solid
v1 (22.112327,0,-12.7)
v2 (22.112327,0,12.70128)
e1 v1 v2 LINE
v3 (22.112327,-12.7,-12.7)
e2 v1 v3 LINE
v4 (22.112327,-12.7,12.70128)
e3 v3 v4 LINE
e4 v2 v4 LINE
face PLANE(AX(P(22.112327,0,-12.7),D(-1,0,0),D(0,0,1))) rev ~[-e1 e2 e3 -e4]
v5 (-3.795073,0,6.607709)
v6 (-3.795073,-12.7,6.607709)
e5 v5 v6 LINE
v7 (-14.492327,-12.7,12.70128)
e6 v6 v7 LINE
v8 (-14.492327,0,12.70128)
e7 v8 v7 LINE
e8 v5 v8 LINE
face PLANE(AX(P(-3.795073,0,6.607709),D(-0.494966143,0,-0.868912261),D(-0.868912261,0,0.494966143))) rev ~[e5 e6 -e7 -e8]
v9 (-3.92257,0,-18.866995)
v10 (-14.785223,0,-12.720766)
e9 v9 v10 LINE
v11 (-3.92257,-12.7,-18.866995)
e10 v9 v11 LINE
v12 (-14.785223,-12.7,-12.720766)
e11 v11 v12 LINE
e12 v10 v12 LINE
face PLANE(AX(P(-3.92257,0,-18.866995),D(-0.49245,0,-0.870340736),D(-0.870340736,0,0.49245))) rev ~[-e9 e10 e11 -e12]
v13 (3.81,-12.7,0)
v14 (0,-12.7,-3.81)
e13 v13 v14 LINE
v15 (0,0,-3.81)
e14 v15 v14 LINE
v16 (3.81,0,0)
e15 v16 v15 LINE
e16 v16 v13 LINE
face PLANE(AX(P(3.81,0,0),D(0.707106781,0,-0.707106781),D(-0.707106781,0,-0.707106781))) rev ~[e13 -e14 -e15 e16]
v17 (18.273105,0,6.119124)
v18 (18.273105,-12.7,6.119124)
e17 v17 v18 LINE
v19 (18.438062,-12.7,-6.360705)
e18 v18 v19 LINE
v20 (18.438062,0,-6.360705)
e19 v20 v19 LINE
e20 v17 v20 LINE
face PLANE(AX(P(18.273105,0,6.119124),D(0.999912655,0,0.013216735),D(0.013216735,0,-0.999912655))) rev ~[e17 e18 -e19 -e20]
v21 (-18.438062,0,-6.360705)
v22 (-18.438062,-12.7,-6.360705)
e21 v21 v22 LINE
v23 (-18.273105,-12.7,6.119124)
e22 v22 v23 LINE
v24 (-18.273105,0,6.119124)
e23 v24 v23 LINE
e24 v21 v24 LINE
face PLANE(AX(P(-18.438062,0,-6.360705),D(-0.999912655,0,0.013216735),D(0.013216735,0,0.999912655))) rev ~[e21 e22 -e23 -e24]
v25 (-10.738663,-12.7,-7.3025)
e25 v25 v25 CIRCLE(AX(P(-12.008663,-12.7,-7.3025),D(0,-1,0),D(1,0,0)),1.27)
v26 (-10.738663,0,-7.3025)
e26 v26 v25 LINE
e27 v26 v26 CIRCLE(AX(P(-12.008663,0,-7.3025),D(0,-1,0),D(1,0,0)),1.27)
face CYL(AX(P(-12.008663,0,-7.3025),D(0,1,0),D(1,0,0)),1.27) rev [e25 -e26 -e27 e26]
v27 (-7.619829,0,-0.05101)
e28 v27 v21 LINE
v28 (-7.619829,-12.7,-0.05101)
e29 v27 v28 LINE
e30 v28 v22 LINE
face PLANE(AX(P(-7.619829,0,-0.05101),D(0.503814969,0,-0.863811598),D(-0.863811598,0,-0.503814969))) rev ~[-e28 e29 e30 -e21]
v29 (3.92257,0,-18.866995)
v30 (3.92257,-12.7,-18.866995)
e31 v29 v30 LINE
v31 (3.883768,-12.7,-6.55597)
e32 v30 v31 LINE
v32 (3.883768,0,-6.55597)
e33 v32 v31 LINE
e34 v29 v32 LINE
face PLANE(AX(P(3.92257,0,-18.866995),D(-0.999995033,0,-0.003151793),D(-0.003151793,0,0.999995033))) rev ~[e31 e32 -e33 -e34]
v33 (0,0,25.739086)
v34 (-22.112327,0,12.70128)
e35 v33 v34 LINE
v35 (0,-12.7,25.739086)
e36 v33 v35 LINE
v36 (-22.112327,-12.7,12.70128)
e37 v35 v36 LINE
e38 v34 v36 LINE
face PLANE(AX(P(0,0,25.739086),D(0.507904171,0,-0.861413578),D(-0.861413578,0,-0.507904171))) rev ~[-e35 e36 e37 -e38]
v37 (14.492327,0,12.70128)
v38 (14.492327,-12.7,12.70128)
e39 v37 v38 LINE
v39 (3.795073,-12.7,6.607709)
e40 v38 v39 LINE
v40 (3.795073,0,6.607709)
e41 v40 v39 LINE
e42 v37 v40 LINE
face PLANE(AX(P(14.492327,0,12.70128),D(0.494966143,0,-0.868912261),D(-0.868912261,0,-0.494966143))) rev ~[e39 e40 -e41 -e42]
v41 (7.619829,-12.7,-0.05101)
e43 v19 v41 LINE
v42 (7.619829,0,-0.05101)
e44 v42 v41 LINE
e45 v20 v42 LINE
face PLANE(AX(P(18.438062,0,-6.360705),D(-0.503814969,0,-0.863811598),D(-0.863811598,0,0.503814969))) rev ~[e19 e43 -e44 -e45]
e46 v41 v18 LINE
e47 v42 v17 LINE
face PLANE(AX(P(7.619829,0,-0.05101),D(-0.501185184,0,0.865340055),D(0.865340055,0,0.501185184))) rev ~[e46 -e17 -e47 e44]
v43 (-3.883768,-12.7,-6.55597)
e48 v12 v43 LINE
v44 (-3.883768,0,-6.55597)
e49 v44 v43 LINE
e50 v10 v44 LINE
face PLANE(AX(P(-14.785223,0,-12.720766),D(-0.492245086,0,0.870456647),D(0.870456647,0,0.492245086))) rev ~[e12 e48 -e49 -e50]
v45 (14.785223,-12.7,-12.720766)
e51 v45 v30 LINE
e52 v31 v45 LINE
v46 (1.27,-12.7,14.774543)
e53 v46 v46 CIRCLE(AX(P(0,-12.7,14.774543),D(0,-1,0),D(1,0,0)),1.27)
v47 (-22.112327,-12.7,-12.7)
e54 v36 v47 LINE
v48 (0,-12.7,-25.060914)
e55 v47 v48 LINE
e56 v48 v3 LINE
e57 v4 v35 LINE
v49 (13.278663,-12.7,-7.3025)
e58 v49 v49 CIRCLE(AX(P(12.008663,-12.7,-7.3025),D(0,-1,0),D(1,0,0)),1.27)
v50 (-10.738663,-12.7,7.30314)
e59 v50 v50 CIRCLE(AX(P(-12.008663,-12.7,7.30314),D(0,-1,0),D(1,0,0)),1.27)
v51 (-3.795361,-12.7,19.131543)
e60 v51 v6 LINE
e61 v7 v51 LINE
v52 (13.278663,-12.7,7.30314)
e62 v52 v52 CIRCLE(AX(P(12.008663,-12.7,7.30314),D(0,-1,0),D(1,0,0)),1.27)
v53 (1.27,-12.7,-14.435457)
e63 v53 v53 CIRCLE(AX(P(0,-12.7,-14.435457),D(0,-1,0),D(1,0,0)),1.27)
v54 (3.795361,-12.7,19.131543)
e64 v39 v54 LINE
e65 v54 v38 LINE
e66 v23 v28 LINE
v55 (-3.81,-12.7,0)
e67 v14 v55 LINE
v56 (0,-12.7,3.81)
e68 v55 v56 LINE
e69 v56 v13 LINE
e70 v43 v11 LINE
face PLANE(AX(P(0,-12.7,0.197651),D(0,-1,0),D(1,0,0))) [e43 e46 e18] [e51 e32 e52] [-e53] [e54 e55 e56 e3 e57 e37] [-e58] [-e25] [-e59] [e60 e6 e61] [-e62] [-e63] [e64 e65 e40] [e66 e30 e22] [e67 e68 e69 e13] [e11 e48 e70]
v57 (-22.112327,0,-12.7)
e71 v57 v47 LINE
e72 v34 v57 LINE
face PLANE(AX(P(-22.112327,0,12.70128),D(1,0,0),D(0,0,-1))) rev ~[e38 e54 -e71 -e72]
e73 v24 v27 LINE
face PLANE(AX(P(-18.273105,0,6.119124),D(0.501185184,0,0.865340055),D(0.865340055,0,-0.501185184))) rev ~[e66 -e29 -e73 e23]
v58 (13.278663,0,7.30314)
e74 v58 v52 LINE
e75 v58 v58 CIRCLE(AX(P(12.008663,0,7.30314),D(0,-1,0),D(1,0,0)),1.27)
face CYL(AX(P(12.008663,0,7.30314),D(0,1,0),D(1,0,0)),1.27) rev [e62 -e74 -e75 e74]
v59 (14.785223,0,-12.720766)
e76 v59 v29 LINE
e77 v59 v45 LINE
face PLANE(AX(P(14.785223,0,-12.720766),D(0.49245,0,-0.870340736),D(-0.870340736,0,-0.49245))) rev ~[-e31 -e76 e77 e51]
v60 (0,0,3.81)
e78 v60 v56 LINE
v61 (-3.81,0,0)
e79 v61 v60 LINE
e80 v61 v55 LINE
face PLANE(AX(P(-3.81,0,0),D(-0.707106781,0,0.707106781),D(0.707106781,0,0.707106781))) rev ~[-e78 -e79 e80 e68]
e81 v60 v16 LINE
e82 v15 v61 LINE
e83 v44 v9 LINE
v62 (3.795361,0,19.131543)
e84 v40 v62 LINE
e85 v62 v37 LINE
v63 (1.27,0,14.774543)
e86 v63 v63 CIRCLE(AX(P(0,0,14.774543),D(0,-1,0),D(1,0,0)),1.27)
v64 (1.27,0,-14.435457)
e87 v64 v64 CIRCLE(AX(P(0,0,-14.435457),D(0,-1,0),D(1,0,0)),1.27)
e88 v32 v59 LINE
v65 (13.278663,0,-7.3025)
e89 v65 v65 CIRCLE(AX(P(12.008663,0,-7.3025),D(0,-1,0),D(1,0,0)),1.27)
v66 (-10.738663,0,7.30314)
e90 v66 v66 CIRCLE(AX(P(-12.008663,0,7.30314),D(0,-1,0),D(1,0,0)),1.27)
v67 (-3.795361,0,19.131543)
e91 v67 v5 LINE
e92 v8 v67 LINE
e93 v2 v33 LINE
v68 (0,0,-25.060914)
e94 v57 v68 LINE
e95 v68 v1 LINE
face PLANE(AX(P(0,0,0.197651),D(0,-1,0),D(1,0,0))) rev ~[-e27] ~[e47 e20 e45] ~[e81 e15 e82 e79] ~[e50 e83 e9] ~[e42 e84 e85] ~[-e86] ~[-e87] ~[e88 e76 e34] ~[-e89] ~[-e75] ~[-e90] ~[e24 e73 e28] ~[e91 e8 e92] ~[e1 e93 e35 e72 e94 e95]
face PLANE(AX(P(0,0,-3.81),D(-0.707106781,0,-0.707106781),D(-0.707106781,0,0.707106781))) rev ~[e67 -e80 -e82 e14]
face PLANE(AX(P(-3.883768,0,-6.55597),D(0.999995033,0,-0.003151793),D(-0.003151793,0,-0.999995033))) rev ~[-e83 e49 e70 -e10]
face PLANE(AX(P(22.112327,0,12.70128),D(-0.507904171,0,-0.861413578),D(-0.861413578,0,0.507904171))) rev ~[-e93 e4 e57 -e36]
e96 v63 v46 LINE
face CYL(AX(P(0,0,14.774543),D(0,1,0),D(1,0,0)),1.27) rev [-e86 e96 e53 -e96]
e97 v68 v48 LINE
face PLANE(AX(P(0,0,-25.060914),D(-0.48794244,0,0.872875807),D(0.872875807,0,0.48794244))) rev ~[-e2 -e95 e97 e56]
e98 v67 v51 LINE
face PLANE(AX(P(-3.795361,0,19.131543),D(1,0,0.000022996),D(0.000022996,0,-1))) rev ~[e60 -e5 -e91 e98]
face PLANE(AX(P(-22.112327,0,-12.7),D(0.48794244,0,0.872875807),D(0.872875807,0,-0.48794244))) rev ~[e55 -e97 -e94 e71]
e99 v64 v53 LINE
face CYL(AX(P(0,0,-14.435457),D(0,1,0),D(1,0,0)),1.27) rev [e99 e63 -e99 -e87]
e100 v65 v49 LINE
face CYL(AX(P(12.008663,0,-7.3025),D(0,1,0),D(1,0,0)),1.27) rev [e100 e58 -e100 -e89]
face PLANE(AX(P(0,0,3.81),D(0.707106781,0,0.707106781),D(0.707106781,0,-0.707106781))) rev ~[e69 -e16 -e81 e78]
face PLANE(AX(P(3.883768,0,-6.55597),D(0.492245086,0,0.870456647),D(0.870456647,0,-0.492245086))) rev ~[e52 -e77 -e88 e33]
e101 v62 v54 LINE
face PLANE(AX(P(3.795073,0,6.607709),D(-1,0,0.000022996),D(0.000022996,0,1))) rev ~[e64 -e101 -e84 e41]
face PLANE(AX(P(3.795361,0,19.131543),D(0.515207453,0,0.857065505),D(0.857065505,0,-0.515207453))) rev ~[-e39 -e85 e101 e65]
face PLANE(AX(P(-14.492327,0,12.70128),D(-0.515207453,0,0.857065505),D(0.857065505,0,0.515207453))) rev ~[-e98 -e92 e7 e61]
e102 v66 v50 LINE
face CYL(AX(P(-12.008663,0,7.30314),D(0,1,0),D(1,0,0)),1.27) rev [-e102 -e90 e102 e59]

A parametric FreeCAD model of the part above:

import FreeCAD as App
import Part
import Sketcher
Q = App.Units.Quantity

doc = App.newDocument("Part")
body = doc.addObject("PartDesign::Body", "Body")

sketch1 = doc.addObject("Sketcher::SketchObject", "Sketch")
body.addObject(sketch1)
sketch1.AttachmentSupport = (doc.XZ_Plane, [""])
sketch1.MapMode = "FlatFace"
sketch1.addGeometry(Part.LineSegment(App.Vector(0, 25.7, 0), App.Vector(-22.1, 12.7, 0)), False)
sketch1.addGeometry(Part.LineSegment(App.Vector(-22.1, 12.7, 0), App.Vector(-22.1, -12.7, 0)), False)
sketch1.addGeometry(Part.LineSegment(App.Vector(-22.1, -12.7, 0), App.Vector(0, -25.1, 0)), False)
sketch1.addGeometry(Part.LineSegment(App.Vector(0, -25.1, 0), App.Vector(22.1, -12.7, 0)), False)
sketch1.addGeometry(Part.LineSegment(App.Vector(22.1, -12.7, 0), App.Vector(22.1, 12.7, 0)), False)
sketch1.addGeometry(Part.LineSegment(App.Vector(22.1, 12.7, 0), App.Vector(0, 25.7, 0)), False)
sketch1.addGeometry(Part.LineSegment(App.Vector(-14.8, -12.7, 0), App.Vector(-3.9, -6.6, 0)), False)
sketch1.addGeometry(Part.LineSegment(App.Vector(-3.9, -6.6, 0), App.Vector(-3.9, -18.9, 0)), False)
sketch1.addGeometry(Part.LineSegment(App.Vector(-3.9, -18.9, 0), App.Vector(-14.8, -12.7, 0)), False)
sketch1.addGeometry(Part.Circle(App.Vector(-12, -7.3, 0), App.Vector(0, 0, 1), 1.3), False)
sketch1.addGeometry(Part.LineSegment(App.Vector(-18.4, -6.4, 0), App.Vector(-18.3, 6.1, 0)), False)
sketch1.addGeometry(Part.LineSegment(App.Vector(-18.3, 6.1, 0), App.Vector(-7.6, -0.1, 0)), False)
sketch1.addGeometry(Part.LineSegment(App.Vector(-7.6, -0.1, 0), App.Vector(-18.4, -6.4, 0)), False)
sketch1.addGeometry(Part.Circle(App.Vector(0, -14.4, 0), App.Vector(0, 0, 1), 1.3), False)
sketch1.addGeometry(Part.LineSegment(App.Vector(3.9, -18.9, 0), App.Vector(3.9, -6.6, 0)), False)
sketch1.addGeometry(Part.LineSegment(App.Vector(3.9, -6.6, 0), App.Vector(14.8, -12.7, 0)), False)
sketch1.addGeometry(Part.LineSegment(App.Vector(14.8, -12.7, 0), App.Vector(3.9, -18.9, 0)), False)
sketch1.addGeometry(Part.LineSegment(App.Vector(0, -3.8, 0), App.Vector(-3.8, 0, 0)), False)
sketch1.addGeometry(Part.LineSegment(App.Vector(-3.8, 0, 0), App.Vector(0, 3.8, 0)), False)
sketch1.addGeometry(Part.LineSegment(App.Vector(0, 3.8, 0), App.Vector(3.8, 0, 0)), False)
sketch1.addGeometry(Part.LineSegment(App.Vector(3.8, 0, 0), App.Vector(0, -3.8, 0)), False)
sketch1.addGeometry(Part.Circle(App.Vector(12, -7.3, 0), App.Vector(0, 0, 1), 1.3), False)
sketch1.addGeometry(Part.LineSegment(App.Vector(7.6, -0.1, 0), App.Vector(18.3, 6.1, 0)), False)
sketch1.addGeometry(Part.LineSegment(App.Vector(18.3, 6.1, 0), App.Vector(18.4, -6.4, 0)), False)
sketch1.addGeometry(Part.LineSegment(App.Vector(18.4, -6.4, 0), App.Vector(7.6, -0.1, 0)), False)
sketch1.addGeometry(Part.Circle(App.Vector(-12, 7.3, 0), App.Vector(0, 0, 1), 1.3), False)
sketch1.addGeometry(Part.LineSegment(App.Vector(-3.8, 6.6, 0), App.Vector(-14.5, 12.7, 0)), False)
sketch1.addGeometry(Part.LineSegment(App.Vector(-14.5, 12.7, 0), App.Vector(-3.8, 19.1, 0)), False)
sketch1.addGeometry(Part.LineSegment(App.Vector(-3.8, 19.1, 0), App.Vector(-3.8, 6.6, 0)), False)
sketch1.addGeometry(Part.Circle(App.Vector(12, 7.3, 0), App.Vector(0, 0, 1), 1.3), False)
sketch1.addGeometry(Part.LineSegment(App.Vector(14.5, 12.7, 0), App.Vector(3.8, 6.6, 0)), False)
sketch1.addGeometry(Part.LineSegment(App.Vector(3.8, 6.6, 0), App.Vector(3.8, 19.1, 0)), False)
sketch1.addGeometry(Part.LineSegment(App.Vector(3.8, 19.1, 0), App.Vector(14.5, 12.7, 0)), False)
sketch1.addGeometry(Part.Circle(App.Vector(0, 14.8, 0), App.Vector(0, 0, 1), 1.3), False)
sketch1.addConstraint(Sketcher.Constraint("Coincident", 0, 2, 1, 1))
sketch1.addConstraint(Sketcher.Constraint("Coincident", 1, 2, 2, 1))
sketch1.addConstraint(Sketcher.Constraint("Coincident", 2, 2, 3, 1))
sketch1.addConstraint(Sketcher.Constraint("Coincident", 3, 2, 4, 1))
sketch1.addConstraint(Sketcher.Constraint("Coincident", 4, 2, 5, 1))
sketch1.addConstraint(Sketcher.Constraint("Coincident", 5, 2, 0, 1))
sketch1.addConstraint(Sketcher.Constraint("Coincident", 6, 2, 7, 1))
sketch1.addConstraint(Sketcher.Constraint("Coincident", 7, 2, 8, 1))
sketch1.addConstraint(Sketcher.Constraint("Coincident", 8, 2, 6, 1))
sketch1.addConstraint(Sketcher.Constraint("Coincident", 10, 2, 11, 1))
sketch1.addConstraint(Sketcher.Constraint("Coincident", 11, 2, 12, 1))
sketch1.addConstraint(Sketcher.Constraint("Coincident", 12, 2, 10, 1))
sketch1.addConstraint(Sketcher.Constraint("Coincident", 14, 2, 15, 1))
sketch1.addConstraint(Sketcher.Constraint("Coincident", 15, 2, 16, 1))
sketch1.addConstraint(Sketcher.Constraint("Coincident", 16, 2, 14, 1))
sketch1.addConstraint(Sketcher.Constraint("Coincident", 17, 2, 18, 1))
sketch1.addConstraint(Sketcher.Constraint("Coincident", 18, 2, 19, 1))
sketch1.addConstraint(Sketcher.Constraint("Coincident", 19, 2, 20, 1))
sketch1.addConstraint(Sketcher.Constraint("Coincident", 20, 2, 17, 1))
sketch1.addConstraint(Sketcher.Constraint("Coincident", 22, 2, 23, 1))
sketch1.addConstraint(Sketcher.Constraint("Coincident", 23, 2, 24, 1))
sketch1.addConstraint(Sketcher.Constraint("Coincident", 24, 2, 22, 1))
sketch1.addConstraint(Sketcher.Constraint("Coincident", 26, 2, 27, 1))
sketch1.addConstraint(Sketcher.Constraint("Coincident", 27, 2, 28, 1))
sketch1.addConstraint(Sketcher.Constraint("Coincident", 28, 2, 26, 1))
sketch1.addConstraint(Sketcher.Constraint("Coincident", 30, 2, 31, 1))
sketch1.addConstraint(Sketcher.Constraint("Coincident", 31, 2, 32, 1))
sketch1.addConstraint(Sketcher.Constraint("Coincident", 32, 2, 30, 1))
sketch1.addConstraint(Sketcher.Constraint("Vertical", 1))
sketch1.addConstraint(Sketcher.Constraint("Vertical", 4))
sketch1.addConstraint(Sketcher.Constraint("Equal", 9, 13))
sketch1.addConstraint(Sketcher.Constraint("Equal", 13, 21))
sketch1.addConstraint(Sketcher.Constraint("Equal", 21, 25))
sketch1.addConstraint(Sketcher.Constraint("Equal", 25, 29))
sketch1.addConstraint(Sketcher.Constraint("Equal", 29, 33))
sketch1.addConstraint(Sketcher.Constraint("Symmetric", 17, 2, 19, 2, -1, 1))
sketch1.addConstraint(Sketcher.Constraint("Symmetric", 18, 2, 20, 2, -1, 1))
sketch1.addConstraint(Sketcher.Constraint("Symmetric", 9, 3, 21, 3, -2))
sketch1.addConstraint(Sketcher.Constraint("Symmetric", 25, 3, 29, 3, -2))
sketch1.addConstraint(Sketcher.Constraint("Symmetric", 1, 2, 3, 2, -2))
sketch1.addConstraint(Sketcher.Constraint("Symmetric", 6, 2, 14, 2, -2))
sketch1.addConstraint(Sketcher.Constraint("Symmetric", 8, 2, 15, 2, -2))
sketch1.addConstraint(Sketcher.Constraint("Symmetric", 7, 2, 16, 2, -2))
sketch1.addConstraint(Sketcher.Constraint("Symmetric", 10, 2, 22, 2, -2))
sketch1.addConstraint(Sketcher.Constraint("Symmetric", 12, 2, 23, 2, -2))
sketch1.addConstraint(Sketcher.Constraint("Symmetric", 11, 2, 24, 2, -2))
sketch1.addConstraint(Sketcher.Constraint("Symmetric", 28, 2, 30, 2, -2))
sketch1.addConstraint(Sketcher.Constraint("Symmetric", 27, 2, 31, 2, -2))
sketch1.addConstraint(Sketcher.Constraint("Symmetric", 26, 2, 32, 2, -2))
sketch1.addConstraint(Sketcher.Constraint("PointOnObject", 13, 3, -2))
sketch1.addConstraint(Sketcher.Constraint("PointOnObject", 33, 3, -2))
sketch1.addConstraint(Sketcher.Constraint("PointOnObject", 2, 2, -2))
sketch1.addConstraint(Sketcher.Constraint("PointOnObject", 5, 2, -2))
sketch1.addConstraint(Sketcher.Constraint("PointOnObject", 17, 2, -1))
sketch1.addConstraint(Sketcher.Constraint("PointOnObject", 18, 2, -2))
sketch1.addConstraint(Sketcher.Constraint("Perpendicular", 17, 18))
sketch1.addConstraint(Sketcher.Constraint("Horizontal", 0, 2, 4, 2))
sketch1.addConstraint(Sketcher.Constraint("Horizontal", 4, 2, 26, 2))
sketch1.addConstraint(Sketcher.Constraint("Vertical", 9, 3, 25, 3))
sketch1.addConstraint(Sketcher.Constraint("Equal", 8, 10))
sketch1.addConstraint(Sketcher.Constraint("Equal", 7, 11))
sketch1.addConstraint(Sketcher.Constraint("Equal", 6, 12))
sketch1.addConstraint(Sketcher.Constraint("Equal", 22, 26))
sketch1.addConstraint(Sketcher.Constraint("Equal", 23, 27))
sketch1.addConstraint(Sketcher.Constraint("Equal", 24, 28))
sketch1.addConstraint(Sketcher.Constraint("Diameter", 9, Q("0.1 in")))
sketch1.addConstraint(Sketcher.Constraint("DistanceY", 1, 2, -1, 1, Q("0.5 in")))
sketch1.addConstraint(Sketcher.Constraint("DistanceX", 17, 2, 19, 2, Q("0.3 in")))
sketch1.addConstraint(Sketcher.Constraint("DistanceX", 0, 2, 26, 2, Q("0.3 in")))
sketch1.addConstraint(Sketcher.Constraint("DistanceY", 13, 3, 33, 3, Q("1.15 in")))
sketch1.addConstraint(Sketcher.Constraint("DistanceY", 9, 3, -1, 1, Q("0.2875 in")))
sketch1.addConstraint(Sketcher.Constraint("DistanceY", 1, 2, 1, 1, Q("25.40128 mm")))
sketch1.addConstraint(Sketcher.Constraint("DistanceX", 12, 2, 9, 3, Q("6.429399 mm")))
sketch1.addConstraint(Sketcher.Constraint("DistanceY", 33, 3, 27, 2, Q("4.357 mm")))
sketch1.addConstraint(Sketcher.Constraint("Distance", 2, Q("25.33273 mm")))
sketch1.addConstraint(Sketcher.Constraint("Distance", 8, Q("12.48092 mm")))
sketch1.addConstraint(Sketcher.Constraint("DistanceY", -1, 1, 25, 3, Q("7.30314 mm")))
sketch1.addConstraint(Sketcher.Constraint("DistanceY", 6, 2, -1, 1, Q("6.55597 mm")))
sketch1.addConstraint(Sketcher.Constraint("DistanceX", 7, 2, -1, 1, Q("3.92257 mm")))
sketch1.addConstraint(Sketcher.Constraint("DistanceX", 11, 2, -1, 1, Q("7.619829 mm")))
sketch1.addConstraint(Sketcher.Constraint("DistanceY", 11, 2, -1, 1, Q("0.05101 mm")))
sketch1.addConstraint(Sketcher.Constraint("DistanceX", 12, 2, -1, 1, Q("18.438062 mm")))
sketch1.addConstraint(Sketcher.Constraint("DistanceX", 27, 2, -1, 1, Q("3.795361 mm")))
sketch1.addConstraint(Sketcher.Constraint("DistanceY", -1, 1, 28, 2, Q("6.607709 mm")))
sketch1.addConstraint(Sketcher.Constraint("DistanceX", 0, 2, 29, 3, Q("34.12099 mm")))
sketch1.addConstraint(Sketcher.Constraint("DistanceX", 6, 2, 21, 3, Q("15.892431 mm")))
sketch1.addConstraint(Sketcher.Constraint("DistanceY", 2, 2, 7, 2, Q("6.193919 mm")))
sketch1.addConstraint(Sketcher.Constraint("Distance", 0, Q("25.669815 mm")))
pad1 = doc.addObject("PartDesign::Pad", "Pad")
body.addObject(pad1)
pad1.Profile = sketch1
pad1.Length = Q("0.5 in")

doc.recompute()
